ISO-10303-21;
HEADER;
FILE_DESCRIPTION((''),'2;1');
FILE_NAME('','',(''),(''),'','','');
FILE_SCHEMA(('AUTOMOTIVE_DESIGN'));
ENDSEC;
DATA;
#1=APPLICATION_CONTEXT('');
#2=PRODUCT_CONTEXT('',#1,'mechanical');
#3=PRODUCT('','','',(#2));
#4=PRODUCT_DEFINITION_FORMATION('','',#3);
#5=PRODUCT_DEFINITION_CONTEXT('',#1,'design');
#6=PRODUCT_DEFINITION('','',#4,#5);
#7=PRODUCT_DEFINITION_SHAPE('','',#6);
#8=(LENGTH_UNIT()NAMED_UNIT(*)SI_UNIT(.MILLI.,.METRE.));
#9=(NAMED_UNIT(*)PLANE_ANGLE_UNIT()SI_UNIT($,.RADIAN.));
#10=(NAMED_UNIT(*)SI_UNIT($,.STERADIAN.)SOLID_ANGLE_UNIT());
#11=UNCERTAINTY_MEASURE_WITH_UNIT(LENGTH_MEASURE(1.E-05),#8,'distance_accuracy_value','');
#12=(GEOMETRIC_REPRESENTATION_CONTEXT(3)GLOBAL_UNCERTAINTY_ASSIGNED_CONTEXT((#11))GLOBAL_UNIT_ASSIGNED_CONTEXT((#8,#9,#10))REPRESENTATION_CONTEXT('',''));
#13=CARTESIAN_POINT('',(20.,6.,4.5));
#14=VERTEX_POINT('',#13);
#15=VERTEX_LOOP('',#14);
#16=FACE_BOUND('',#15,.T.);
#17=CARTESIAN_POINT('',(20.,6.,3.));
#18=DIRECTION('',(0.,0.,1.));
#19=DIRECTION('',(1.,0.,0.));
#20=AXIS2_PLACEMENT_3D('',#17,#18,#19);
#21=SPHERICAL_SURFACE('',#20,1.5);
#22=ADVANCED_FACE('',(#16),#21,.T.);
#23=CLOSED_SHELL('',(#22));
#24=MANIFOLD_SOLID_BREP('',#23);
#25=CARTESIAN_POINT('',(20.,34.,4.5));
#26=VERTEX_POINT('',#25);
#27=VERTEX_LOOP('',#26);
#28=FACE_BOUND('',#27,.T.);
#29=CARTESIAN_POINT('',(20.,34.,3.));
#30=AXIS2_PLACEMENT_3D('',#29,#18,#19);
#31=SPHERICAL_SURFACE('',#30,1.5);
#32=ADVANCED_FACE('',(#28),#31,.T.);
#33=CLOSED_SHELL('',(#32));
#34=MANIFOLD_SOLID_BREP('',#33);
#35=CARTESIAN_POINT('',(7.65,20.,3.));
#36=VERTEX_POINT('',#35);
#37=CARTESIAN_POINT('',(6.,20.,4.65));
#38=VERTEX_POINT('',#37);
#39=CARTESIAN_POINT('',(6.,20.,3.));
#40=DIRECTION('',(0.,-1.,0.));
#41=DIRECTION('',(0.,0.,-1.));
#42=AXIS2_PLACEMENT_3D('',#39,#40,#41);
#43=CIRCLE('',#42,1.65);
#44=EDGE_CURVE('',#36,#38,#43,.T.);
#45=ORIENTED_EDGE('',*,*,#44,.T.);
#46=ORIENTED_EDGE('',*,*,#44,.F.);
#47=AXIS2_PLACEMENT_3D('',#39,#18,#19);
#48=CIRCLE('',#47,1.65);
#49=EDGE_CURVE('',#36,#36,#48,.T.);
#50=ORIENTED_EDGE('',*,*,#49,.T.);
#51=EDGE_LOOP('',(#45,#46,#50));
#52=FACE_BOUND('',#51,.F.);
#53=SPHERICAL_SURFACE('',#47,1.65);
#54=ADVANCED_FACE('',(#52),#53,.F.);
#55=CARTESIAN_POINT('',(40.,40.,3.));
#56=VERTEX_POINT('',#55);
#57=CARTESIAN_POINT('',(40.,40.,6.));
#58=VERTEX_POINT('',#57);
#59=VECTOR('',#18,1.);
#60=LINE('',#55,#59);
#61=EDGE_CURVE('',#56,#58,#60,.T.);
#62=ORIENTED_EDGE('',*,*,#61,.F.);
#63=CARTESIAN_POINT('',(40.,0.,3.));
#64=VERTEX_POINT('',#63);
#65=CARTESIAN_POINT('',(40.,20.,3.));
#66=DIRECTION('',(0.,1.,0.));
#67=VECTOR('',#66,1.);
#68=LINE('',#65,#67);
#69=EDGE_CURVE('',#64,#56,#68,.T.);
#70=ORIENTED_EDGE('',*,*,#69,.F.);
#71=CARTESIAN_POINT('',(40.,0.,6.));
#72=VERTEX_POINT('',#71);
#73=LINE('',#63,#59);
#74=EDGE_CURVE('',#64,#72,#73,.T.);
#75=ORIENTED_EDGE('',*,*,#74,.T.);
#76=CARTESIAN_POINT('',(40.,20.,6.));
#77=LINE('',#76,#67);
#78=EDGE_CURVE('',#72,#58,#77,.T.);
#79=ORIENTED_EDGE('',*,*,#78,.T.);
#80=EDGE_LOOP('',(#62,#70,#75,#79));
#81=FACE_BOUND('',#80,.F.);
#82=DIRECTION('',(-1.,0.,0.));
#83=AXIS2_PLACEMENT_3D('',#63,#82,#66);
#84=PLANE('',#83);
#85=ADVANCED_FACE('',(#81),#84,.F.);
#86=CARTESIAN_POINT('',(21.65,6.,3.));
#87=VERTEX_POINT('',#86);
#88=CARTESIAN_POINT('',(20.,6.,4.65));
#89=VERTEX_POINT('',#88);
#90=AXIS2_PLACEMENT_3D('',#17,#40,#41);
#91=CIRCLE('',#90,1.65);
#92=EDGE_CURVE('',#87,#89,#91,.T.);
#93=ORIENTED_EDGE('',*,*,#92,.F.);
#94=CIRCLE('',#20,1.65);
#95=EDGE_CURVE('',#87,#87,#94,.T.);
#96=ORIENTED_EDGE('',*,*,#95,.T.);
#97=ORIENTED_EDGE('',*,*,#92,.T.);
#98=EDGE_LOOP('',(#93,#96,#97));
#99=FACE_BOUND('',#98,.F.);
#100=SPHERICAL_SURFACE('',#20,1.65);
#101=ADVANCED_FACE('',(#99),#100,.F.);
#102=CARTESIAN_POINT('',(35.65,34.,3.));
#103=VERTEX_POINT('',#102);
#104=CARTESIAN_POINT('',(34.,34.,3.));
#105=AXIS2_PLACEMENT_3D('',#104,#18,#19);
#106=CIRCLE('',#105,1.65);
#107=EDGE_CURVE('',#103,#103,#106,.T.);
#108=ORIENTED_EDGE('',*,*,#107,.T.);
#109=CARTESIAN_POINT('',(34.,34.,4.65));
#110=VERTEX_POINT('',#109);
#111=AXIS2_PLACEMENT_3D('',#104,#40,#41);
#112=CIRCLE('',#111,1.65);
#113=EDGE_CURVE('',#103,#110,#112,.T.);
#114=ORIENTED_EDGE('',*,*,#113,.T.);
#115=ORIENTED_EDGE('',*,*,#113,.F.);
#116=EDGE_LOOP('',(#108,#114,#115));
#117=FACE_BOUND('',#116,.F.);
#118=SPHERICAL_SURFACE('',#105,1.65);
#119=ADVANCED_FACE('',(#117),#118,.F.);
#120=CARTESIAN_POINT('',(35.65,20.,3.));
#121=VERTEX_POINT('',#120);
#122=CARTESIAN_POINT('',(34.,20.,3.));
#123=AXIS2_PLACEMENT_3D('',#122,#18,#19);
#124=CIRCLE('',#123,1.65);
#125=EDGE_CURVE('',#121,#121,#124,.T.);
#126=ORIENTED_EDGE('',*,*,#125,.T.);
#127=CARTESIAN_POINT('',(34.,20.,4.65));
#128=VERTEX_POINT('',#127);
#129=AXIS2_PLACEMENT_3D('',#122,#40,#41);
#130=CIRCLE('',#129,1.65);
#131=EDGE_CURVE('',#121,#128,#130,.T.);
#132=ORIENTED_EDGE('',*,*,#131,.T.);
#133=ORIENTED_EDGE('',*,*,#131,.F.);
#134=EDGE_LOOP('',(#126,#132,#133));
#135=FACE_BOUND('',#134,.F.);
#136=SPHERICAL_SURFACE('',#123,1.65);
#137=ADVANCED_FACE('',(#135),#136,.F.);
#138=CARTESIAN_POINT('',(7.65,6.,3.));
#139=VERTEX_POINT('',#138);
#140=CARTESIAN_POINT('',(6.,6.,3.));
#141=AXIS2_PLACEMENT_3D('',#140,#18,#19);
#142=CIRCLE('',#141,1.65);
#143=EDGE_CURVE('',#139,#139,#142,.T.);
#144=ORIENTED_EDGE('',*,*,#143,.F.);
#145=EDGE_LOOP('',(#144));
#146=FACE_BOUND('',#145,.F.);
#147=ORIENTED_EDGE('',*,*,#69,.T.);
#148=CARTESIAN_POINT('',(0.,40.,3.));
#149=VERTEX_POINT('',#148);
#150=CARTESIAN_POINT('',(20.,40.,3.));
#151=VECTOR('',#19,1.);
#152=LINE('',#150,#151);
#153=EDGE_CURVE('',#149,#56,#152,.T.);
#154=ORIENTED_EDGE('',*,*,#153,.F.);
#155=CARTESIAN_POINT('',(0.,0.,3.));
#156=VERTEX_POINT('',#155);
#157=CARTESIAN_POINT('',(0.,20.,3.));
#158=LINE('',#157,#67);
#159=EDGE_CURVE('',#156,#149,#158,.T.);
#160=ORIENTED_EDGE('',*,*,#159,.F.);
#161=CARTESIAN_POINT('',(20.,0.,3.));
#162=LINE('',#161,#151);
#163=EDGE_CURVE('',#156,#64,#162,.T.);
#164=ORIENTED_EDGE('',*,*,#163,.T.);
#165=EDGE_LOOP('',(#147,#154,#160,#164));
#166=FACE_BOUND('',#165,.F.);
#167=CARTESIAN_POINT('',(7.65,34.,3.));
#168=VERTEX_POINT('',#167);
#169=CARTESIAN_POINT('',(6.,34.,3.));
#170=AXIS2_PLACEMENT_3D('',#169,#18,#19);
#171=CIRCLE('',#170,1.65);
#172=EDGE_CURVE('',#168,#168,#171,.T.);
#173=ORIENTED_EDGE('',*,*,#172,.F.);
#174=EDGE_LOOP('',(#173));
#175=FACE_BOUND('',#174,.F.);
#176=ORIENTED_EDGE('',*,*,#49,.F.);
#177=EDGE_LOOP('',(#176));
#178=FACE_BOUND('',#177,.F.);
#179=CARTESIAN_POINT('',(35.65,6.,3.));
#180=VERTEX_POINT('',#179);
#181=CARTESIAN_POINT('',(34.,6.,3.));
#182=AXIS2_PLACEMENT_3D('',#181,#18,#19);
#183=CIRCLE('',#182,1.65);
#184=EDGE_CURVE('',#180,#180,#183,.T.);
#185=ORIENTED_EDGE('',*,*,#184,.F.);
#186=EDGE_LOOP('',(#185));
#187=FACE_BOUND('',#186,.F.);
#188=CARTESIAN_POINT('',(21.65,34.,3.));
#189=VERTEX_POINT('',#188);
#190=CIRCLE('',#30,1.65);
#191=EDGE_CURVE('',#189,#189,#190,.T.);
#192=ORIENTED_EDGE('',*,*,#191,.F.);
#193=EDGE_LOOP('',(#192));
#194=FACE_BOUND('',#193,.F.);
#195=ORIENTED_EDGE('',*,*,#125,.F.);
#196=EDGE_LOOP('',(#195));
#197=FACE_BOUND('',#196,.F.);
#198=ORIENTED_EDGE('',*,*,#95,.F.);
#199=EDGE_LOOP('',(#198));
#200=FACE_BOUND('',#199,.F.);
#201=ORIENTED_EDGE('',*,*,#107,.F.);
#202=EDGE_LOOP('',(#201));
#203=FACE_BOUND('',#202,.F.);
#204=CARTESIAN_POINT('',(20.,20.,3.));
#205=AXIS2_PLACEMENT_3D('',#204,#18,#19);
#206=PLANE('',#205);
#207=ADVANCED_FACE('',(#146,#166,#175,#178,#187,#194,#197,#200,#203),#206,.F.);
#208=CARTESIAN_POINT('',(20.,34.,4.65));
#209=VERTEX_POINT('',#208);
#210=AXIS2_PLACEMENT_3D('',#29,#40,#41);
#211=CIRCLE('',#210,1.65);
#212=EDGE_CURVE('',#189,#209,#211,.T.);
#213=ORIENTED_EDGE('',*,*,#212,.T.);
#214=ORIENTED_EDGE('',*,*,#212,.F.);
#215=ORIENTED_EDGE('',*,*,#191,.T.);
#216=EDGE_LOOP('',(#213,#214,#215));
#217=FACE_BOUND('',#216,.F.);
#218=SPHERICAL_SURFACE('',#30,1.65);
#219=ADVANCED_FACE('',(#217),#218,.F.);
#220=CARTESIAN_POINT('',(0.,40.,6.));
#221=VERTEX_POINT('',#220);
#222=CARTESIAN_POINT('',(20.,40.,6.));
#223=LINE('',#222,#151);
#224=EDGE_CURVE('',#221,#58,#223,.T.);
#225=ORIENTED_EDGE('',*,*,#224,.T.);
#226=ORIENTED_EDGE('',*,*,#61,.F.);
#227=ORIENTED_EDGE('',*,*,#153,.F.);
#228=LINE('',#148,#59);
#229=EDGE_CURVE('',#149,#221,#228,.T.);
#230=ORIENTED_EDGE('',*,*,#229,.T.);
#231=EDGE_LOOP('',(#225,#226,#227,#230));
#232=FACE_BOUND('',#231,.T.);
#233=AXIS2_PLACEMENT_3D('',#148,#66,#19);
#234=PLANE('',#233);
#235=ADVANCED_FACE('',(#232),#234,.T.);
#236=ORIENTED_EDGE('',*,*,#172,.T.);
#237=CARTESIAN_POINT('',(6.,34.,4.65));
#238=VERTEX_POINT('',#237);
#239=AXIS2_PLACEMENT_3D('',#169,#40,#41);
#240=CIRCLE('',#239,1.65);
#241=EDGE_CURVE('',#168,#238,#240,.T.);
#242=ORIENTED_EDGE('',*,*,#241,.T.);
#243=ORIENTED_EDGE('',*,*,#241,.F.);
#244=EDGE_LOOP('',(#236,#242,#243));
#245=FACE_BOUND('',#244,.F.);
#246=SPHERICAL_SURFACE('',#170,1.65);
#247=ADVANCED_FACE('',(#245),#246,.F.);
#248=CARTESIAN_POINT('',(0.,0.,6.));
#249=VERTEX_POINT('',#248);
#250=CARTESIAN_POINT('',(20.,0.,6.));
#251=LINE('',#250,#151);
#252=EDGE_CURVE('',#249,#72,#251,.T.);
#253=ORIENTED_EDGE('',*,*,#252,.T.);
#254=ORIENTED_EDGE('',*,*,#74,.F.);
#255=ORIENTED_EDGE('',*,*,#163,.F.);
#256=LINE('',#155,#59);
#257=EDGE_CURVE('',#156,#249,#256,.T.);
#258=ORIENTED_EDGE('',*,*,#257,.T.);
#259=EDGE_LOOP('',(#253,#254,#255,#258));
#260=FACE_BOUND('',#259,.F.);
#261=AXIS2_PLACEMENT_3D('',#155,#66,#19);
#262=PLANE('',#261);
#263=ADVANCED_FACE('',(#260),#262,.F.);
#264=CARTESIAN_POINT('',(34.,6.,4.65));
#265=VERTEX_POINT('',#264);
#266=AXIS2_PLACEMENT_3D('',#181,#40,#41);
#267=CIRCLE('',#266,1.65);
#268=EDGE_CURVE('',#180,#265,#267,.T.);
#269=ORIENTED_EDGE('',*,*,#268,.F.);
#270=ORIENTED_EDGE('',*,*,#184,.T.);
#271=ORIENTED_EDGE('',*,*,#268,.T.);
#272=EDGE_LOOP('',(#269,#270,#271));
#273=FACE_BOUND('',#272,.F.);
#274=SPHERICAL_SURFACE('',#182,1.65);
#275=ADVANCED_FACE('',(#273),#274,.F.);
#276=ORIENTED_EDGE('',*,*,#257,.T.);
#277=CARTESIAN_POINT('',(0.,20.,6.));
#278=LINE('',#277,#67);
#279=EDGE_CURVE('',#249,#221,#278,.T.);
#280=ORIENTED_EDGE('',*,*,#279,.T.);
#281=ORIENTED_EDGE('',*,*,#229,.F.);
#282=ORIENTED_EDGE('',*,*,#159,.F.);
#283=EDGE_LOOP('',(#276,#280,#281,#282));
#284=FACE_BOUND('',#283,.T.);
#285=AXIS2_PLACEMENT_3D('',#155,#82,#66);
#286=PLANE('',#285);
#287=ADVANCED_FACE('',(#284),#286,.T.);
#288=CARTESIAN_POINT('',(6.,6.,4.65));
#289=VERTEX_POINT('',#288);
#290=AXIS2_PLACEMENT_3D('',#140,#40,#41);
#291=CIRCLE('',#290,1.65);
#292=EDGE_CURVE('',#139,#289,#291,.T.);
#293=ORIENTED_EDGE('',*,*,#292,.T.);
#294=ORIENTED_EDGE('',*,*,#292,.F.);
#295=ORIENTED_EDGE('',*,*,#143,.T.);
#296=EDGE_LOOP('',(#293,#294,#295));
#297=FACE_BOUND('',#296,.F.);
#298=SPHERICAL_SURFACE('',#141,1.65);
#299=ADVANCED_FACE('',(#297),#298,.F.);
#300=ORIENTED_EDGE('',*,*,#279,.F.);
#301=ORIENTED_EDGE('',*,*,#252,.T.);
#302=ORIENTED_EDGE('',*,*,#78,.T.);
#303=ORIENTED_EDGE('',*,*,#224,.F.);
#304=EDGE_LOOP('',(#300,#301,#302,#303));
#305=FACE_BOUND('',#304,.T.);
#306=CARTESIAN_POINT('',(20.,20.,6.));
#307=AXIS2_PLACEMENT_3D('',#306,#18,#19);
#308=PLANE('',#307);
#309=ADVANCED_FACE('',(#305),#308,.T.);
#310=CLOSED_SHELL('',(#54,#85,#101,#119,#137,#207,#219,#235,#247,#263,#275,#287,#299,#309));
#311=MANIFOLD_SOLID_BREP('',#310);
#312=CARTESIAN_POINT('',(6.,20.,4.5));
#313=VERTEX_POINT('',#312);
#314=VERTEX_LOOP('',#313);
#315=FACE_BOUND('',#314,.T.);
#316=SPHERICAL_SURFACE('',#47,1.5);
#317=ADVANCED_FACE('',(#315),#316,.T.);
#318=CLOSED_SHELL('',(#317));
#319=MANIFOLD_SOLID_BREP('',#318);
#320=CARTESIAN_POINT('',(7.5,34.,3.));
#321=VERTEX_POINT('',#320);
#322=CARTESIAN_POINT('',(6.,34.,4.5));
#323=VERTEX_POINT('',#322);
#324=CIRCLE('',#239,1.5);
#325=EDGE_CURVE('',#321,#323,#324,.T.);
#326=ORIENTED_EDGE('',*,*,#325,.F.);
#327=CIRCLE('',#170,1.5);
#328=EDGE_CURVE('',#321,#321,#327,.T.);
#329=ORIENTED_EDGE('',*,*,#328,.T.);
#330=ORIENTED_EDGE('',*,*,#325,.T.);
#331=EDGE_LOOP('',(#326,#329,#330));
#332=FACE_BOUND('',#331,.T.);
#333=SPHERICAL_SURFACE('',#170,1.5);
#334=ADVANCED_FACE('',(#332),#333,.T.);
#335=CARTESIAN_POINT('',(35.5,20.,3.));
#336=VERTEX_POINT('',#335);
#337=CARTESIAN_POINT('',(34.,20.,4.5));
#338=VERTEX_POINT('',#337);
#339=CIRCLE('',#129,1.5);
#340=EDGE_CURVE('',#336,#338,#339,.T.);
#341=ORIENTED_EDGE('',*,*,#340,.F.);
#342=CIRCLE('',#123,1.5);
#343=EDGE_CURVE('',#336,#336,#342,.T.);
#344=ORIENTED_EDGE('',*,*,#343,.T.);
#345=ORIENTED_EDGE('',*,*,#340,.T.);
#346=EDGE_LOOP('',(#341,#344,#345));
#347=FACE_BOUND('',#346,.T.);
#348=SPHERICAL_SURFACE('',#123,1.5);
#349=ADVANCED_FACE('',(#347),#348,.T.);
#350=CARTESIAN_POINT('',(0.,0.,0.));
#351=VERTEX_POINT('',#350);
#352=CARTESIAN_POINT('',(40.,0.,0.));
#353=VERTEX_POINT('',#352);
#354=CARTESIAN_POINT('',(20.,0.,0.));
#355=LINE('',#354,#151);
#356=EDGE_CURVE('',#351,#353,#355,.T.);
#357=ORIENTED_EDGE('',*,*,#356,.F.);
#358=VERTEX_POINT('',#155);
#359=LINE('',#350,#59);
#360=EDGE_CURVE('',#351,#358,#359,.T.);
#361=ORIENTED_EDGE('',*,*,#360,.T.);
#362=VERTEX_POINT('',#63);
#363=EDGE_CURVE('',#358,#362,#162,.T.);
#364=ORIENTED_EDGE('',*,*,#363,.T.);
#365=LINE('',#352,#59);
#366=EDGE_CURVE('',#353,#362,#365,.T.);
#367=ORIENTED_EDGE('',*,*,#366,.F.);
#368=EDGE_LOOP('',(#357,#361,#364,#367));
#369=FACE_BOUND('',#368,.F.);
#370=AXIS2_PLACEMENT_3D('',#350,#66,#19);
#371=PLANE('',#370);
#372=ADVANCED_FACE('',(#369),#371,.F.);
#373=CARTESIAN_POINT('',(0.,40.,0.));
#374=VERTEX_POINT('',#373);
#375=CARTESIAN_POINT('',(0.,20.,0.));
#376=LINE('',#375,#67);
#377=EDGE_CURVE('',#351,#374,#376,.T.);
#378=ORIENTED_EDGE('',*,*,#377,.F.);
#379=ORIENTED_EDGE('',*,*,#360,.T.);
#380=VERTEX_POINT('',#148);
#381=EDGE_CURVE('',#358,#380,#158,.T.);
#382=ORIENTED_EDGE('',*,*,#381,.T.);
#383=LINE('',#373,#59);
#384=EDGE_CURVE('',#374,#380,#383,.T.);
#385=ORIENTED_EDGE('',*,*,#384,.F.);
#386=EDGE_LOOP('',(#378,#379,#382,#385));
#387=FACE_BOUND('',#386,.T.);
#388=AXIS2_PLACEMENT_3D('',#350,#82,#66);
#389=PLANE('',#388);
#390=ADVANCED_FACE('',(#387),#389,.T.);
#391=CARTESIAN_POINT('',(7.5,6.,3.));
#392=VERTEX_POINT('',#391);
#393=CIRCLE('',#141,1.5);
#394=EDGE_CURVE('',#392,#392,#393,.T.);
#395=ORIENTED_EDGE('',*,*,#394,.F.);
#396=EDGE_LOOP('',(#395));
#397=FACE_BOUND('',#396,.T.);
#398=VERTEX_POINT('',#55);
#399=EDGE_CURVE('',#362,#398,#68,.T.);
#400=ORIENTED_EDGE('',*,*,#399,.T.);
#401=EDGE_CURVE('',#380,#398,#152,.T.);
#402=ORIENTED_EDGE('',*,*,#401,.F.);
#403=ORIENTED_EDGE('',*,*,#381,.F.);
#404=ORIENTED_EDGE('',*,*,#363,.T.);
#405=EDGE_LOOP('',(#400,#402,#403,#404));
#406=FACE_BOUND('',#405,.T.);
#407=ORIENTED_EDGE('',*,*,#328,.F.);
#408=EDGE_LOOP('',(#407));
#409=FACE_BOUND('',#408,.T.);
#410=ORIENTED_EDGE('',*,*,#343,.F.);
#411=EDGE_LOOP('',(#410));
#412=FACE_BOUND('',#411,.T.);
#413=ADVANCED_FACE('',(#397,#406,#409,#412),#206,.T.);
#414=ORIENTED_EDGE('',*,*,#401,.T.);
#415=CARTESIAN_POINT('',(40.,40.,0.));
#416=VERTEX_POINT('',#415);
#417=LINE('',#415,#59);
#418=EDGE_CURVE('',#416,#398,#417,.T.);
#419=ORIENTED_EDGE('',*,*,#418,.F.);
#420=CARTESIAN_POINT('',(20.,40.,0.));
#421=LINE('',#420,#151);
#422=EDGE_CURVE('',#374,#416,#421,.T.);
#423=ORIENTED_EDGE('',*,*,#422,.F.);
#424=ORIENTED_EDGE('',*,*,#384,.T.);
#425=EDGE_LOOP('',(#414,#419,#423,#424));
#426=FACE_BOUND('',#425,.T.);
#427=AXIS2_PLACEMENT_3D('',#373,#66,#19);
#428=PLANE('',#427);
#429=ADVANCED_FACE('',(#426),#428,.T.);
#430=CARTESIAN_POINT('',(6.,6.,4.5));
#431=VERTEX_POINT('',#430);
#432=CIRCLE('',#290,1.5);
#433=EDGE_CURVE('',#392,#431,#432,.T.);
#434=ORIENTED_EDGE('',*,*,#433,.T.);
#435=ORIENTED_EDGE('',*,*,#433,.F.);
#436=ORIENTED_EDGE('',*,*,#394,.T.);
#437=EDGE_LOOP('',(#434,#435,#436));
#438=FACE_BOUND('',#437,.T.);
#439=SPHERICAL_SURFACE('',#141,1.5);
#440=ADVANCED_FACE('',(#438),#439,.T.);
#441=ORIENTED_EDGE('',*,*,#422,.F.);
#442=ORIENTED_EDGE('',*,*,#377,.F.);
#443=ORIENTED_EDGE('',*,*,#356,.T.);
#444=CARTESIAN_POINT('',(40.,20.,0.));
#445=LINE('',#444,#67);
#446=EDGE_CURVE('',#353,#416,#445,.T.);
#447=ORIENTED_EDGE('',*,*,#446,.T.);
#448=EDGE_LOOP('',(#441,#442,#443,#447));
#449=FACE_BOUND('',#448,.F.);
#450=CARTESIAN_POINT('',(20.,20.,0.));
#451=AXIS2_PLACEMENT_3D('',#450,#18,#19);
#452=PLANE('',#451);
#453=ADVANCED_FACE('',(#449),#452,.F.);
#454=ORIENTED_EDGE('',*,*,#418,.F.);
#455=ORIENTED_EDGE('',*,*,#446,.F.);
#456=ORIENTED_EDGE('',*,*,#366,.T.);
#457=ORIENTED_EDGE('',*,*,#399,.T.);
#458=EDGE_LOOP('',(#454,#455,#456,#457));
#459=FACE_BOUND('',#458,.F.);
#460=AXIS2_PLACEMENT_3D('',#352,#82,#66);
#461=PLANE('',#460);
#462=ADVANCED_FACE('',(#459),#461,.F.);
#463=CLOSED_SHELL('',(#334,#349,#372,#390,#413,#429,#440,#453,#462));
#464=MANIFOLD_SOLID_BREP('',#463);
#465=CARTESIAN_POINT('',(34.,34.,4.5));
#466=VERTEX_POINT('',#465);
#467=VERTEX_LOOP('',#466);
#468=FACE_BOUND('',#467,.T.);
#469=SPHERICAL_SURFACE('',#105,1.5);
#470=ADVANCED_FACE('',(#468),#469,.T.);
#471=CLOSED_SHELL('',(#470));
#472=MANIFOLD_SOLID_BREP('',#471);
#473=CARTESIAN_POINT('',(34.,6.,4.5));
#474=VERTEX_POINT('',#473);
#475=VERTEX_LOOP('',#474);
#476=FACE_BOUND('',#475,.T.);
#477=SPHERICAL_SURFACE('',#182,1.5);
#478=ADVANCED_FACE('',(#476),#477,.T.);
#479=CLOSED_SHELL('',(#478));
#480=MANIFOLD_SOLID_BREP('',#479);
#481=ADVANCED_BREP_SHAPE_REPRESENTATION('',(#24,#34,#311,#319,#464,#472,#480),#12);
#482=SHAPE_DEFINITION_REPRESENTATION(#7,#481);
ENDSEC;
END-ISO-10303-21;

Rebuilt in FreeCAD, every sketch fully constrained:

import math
import FreeCAD as App
import Part
import Sketcher
from FreeCAD import Vector


def add_polygon(sketch, points):
    """Adds a closed chain of lines whose ends are joined by coincident constraints."""
    first, n = sketch.GeometryCount, len(points)
    for a, b in zip(points, points[1:] + points[:1]):
        sketch.addGeometry(Part.LineSegment(App.Vector(*a, 0), App.Vector(*b, 0)), False)
    for i in range(n):
        sketch.addConstraint(Sketcher.Constraint("Coincident", first + i, 2, first + (i + 1) % n, 1))

doc = App.newDocument("Part")
params = doc.addObject("Spreadsheet::Sheet", "Params")
for row, (alias, value) in enumerate([
    ("sketch1_radius", "1.65 mm"),
    ("revolution_angle", "360 deg"),
    ("sketch2_radius", "1.65 mm"),
    ("revolution2_angle", "360 deg"),
    ("sketch3_radius", "1.65 mm"),
    ("revolution3_angle", "360 deg"),
    ("sketch4_radius", "1.65 mm"),
    ("revolution4_angle", "360 deg"),
    ("sketch5_radius", "1.65 mm"),
    ("revolution5_angle", "360 deg"),
    ("sketch6_radius", "1.65 mm"),
    ("revolution6_angle", "360 deg"),
    ("sketch7_radius", "1.65 mm"),
    ("revolution7_angle", "360 deg"),
    ("sketch8_radius", "1.65 mm"),
    ("revolution8_angle", "360 deg"),
    ("sketch9_width", "40 mm"),
    ("pad1_length", "3 mm"),
    ("sketch10_radius", "1.5 mm"),
    ("revolution9_angle", "360 deg"),
    ("sketch11_radius", "1.5 mm"),
    ("revolution10_angle", "360 deg"),
    ("sketch12_radius", "1.5 mm"),
    ("revolution11_angle", "360 deg"),
    ("sketch13_radius", "1.5 mm"),
    ("revolution12_angle", "360 deg"),
    ("sketch14_radius", "1.5 mm"),
    ("revolution13_angle", "360 deg"),
    ("sketch15_radius", "1.5 mm"),
    ("revolution14_angle", "360 deg"),
    ("sketch16_radius", "1.5 mm"),
    ("revolution15_angle", "360 deg"),
    ("sketch17_radius", "1.5 mm"),
    ("revolution16_angle", "360 deg"),
    ("sketch18_width", "40 mm"),
    ("pad2_length", "3 mm"),
], start=1):
    params.set(f"A{row}", alias)
    params.set(f"B{row}", "=" + value)
    params.setAlias(f"B{row}", alias)

body = doc.addObject("PartDesign::Body", "Body")

# Sketch on XZ plane
sketch1 = body.newObject("Sketcher::SketchObject", "Sketch")
sketch1.AttachmentSupport = (doc.getObject("XZ_Plane"), [""])
sketch1.MapMode = "FlatFace"
sketch1.AttachmentOffset = App.Placement(Vector(0, 0, -20), App.Rotation())
sketch1.addGeometry([
    Part.ArcOfCircle(Part.Circle(Vector(34, 3, 0), Vector(0, 0, 1), 1.6), math.radians(-90), math.radians(90)),
    Part.LineSegment(Vector(34, 4.7, 0), Vector(34, 1.4, 0)),
], False)
sketch1.addGeometry(Part.LineSegment(Vector(34, 1.4, 0), Vector(34, 4.7, 0)), True)  # axis
sketch1.addConstraint([
    Sketcher.Constraint("Coincident", 0, 1, 1, 2),
    Sketcher.Constraint("Coincident", 1, 1, 0, 2),
    Sketcher.Constraint("Vertical", 1),
    Sketcher.Constraint("Vertical", 2),
    Sketcher.Constraint("Coincident", 2, 1, 0, 1),
    Sketcher.Constraint("Equal", 1, 2),
    Sketcher.Constraint("Radius", 0, 1.65),
    Sketcher.Constraint("DistanceX", -1, 1, 0, 3, 34.0),
    Sketcher.Constraint("DistanceY", -1, 1, 0, 3, 3.0),
    Sketcher.Constraint("DistanceX", -1, 1, 0, 1, 34.0),
])
sketch1.setExpression("Constraints[6]", "Params.sketch1_radius")
revolution = body.newObject("PartDesign::Revolution", "Revolution")
revolution.Profile = sketch1
revolution.ReferenceAxis = (sketch1, ["Axis0"])
revolution.setExpression("Angle", "Params.revolution_angle")
body2 = doc.addObject("PartDesign::Body", "Body001")

# Sketch on XZ plane
sketch2 = body2.newObject("Sketcher::SketchObject", "Sketch001")
sketch2.AttachmentSupport = (doc.getObject("XZ_Plane001"), [""])
sketch2.MapMode = "FlatFace"
sketch2.AttachmentOffset = App.Placement(Vector(0, 0, -6), App.Rotation())
sketch2.addGeometry([
    Part.ArcOfCircle(Part.Circle(Vector(34, 3, 0), Vector(0, 0, 1), 1.6), math.radians(-90), math.radians(90)),
    Part.LineSegment(Vector(34, 4.7, 0), Vector(34, 1.4, 0)),
], False)
sketch2.addGeometry(Part.LineSegment(Vector(34, 1.4, 0), Vector(34, 4.7, 0)), True)  # axis
sketch2.addConstraint([
    Sketcher.Constraint("Coincident", 0, 1, 1, 2),
    Sketcher.Constraint("Coincident", 1, 1, 0, 2),
    Sketcher.Constraint("Vertical", 1),
    Sketcher.Constraint("Vertical", 2),
    Sketcher.Constraint("Coincident", 2, 1, 0, 1),
    Sketcher.Constraint("Equal", 1, 2),
    Sketcher.Constraint("Radius", 0, 1.65),
    Sketcher.Constraint("DistanceX", -1, 1, 0, 3, 34.0),
    Sketcher.Constraint("DistanceY", -1, 1, 0, 3, 3.0),
    Sketcher.Constraint("DistanceX", -1, 1, 0, 1, 34.0),
])
sketch2.setExpression("Constraints[6]", "Params.sketch2_radius")
revolution2 = body2.newObject("PartDesign::Revolution", "Revolution001")
revolution2.Profile = sketch2
revolution2.ReferenceAxis = (sketch2, ["Axis0"])
revolution2.setExpression("Angle", "Params.revolution2_angle")
body3 = doc.addObject("PartDesign::Body", "Body002")

# Sketch on XZ plane
sketch3 = body3.newObject("Sketcher::SketchObject", "Sketch002")
sketch3.AttachmentSupport = (doc.getObject("XZ_Plane002"), [""])
sketch3.MapMode = "FlatFace"
sketch3.AttachmentOffset = App.Placement(Vector(0, 0, -34), App.Rotation())
sketch3.addGeometry([
    Part.ArcOfCircle(Part.Circle(Vector(20, 3, 0), Vector(0, 0, 1), 1.6), math.radians(-90), math.radians(90)),
    Part.LineSegment(Vector(20, 4.7, 0), Vector(20, 1.4, 0)),
], False)
sketch3.addGeometry(Part.LineSegment(Vector(20, 1.4, 0), Vector(20, 4.7, 0)), True)  # axis
sketch3.addConstraint([
    Sketcher.Constraint("Coincident", 0, 1, 1, 2),
    Sketcher.Constraint("Coincident", 1, 1, 0, 2),
    Sketcher.Constraint("Vertical", 1),
    Sketcher.Constraint("Vertical", 2),
    Sketcher.Constraint("Coincident", 2, 1, 0, 1),
    Sketcher.Constraint("Equal", 1, 2),
    Sketcher.Constraint("Radius", 0, 1.65),
    Sketcher.Constraint("DistanceX", -1, 1, 0, 3, 20.0),
    Sketcher.Constraint("DistanceY", -1, 1, 0, 3, 3.0),
    Sketcher.Constraint("DistanceX", -1, 1, 0, 1, 20.0),
])
sketch3.setExpression("Constraints[6]", "Params.sketch3_radius")
revolution3 = body3.newObject("PartDesign::Revolution", "Revolution002")
revolution3.Profile = sketch3
revolution3.ReferenceAxis = (sketch3, ["Axis0"])
revolution3.setExpression("Angle", "Params.revolution3_angle")
body4 = doc.addObject("PartDesign::Body", "Body003")

# Sketch on XZ plane
sketch4 = body4.newObject("Sketcher::SketchObject", "Sketch003")
sketch4.AttachmentSupport = (doc.getObject("XZ_Plane003"), [""])
sketch4.MapMode = "FlatFace"
sketch4.AttachmentOffset = App.Placement(Vector(0, 0, -6), App.Rotation())
sketch4.addGeometry([
    Part.ArcOfCircle(Part.Circle(Vector(20, 3, 0), Vector(0, 0, 1), 1.6), math.radians(-90), math.radians(90)),
    Part.LineSegment(Vector(20, 4.7, 0), Vector(20, 1.4, 0)),
], False)
sketch4.addGeometry(Part.LineSegment(Vector(20, 1.4, 0), Vector(20, 4.7, 0)), True)  # axis
sketch4.addConstraint([
    Sketcher.Constraint("Coincident", 0, 1, 1, 2),
    Sketcher.Constraint("Coincident", 1, 1, 0, 2),
    Sketcher.Constraint("Vertical", 1),
    Sketcher.Constraint("Vertical", 2),
    Sketcher.Constraint("Coincident", 2, 1, 0, 1),
    Sketcher.Constraint("Equal", 1, 2),
    Sketcher.Constraint("Radius", 0, 1.65),
    Sketcher.Constraint("DistanceX", -1, 1, 0, 3, 20.0),
    Sketcher.Constraint("DistanceY", -1, 1, 0, 3, 3.0),
    Sketcher.Constraint("DistanceX", -1, 1, 0, 1, 20.0),
])
sketch4.setExpression("Constraints[6]", "Params.sketch4_radius")
revolution4 = body4.newObject("PartDesign::Revolution", "Revolution003")
revolution4.Profile = sketch4
revolution4.ReferenceAxis = (sketch4, ["Axis0"])
revolution4.setExpression("Angle", "Params.revolution4_angle")
body5 = doc.addObject("PartDesign::Body", "Body004")

# Sketch on XZ plane
sketch5 = body5.newObject("Sketcher::SketchObject", "Sketch004")
sketch5.AttachmentSupport = (doc.getObject("XZ_Plane004"), [""])
sketch5.MapMode = "FlatFace"
sketch5.AttachmentOffset = App.Placement(Vector(0, 0, -34), App.Rotation())
sketch5.addGeometry([
    Part.ArcOfCircle(Part.Circle(Vector(6, 3, 0), Vector(0, 0, 1), 1.6), math.radians(-90), math.radians(90)),
    Part.LineSegment(Vector(6, 4.7, 0), Vector(6, 1.4, 0)),
], False)
sketch5.addGeometry(Part.LineSegment(Vector(6, 1.4, 0), Vector(6, 4.7, 0)), True)  # axis
sketch5.addConstraint([
    Sketcher.Constraint("Coincident", 0, 1, 1, 2),
    Sketcher.Constraint("Coincident", 1, 1, 0, 2),
    Sketcher.Constraint("Vertical", 1),
    Sketcher.Constraint("Vertical", 2),
    Sketcher.Constraint("Coincident", 2, 1, 0, 1),
    Sketcher.Constraint("Equal", 1, 2),
    Sketcher.Constraint("Radius", 0, 1.65),
    Sketcher.Constraint("DistanceX", -1, 1, 0, 3, 6.0),
    Sketcher.Constraint("DistanceY", -1, 1, 0, 3, 3.0),
    Sketcher.Constraint("DistanceX", -1, 1, 0, 1, 6.0),
])
sketch5.setExpression("Constraints[6]", "Params.sketch5_radius")
revolution5 = body5.newObject("PartDesign::Revolution", "Revolution004")
revolution5.Profile = sketch5
revolution5.ReferenceAxis = (sketch5, ["Axis0"])
revolution5.setExpression("Angle", "Params.revolution5_angle")
body6 = doc.addObject("PartDesign::Body", "Body005")

# Sketch on XZ plane
sketch6 = body6.newObject("Sketcher::SketchObject", "Sketch005")
sketch6.AttachmentSupport = (doc.getObject("XZ_Plane005"), [""])
sketch6.MapMode = "FlatFace"
sketch6.AttachmentOffset = App.Placement(Vector(0, 0, -34), App.Rotation())
sketch6.addGeometry([
    Part.ArcOfCircle(Part.Circle(Vector(34, 3, 0), Vector(0, 0, 1), 1.6), math.radians(-90), math.radians(90)),
    Part.LineSegment(Vector(34, 4.7, 0), Vector(34, 1.4, 0)),
], False)
sketch6.addGeometry(Part.LineSegment(Vector(34, 1.4, 0), Vector(34, 4.7, 0)), True)  # axis
sketch6.addConstraint([
    Sketcher.Constraint("Coincident", 0, 1, 1, 2),
    Sketcher.Constraint("Coincident", 1, 1, 0, 2),
    Sketcher.Constraint("Vertical", 1),
    Sketcher.Constraint("Vertical", 2),
    Sketcher.Constraint("Coincident", 2, 1, 0, 1),
    Sketcher.Constraint("Equal", 1, 2),
    Sketcher.Constraint("Radius", 0, 1.65),
    Sketcher.Constraint("DistanceX", -1, 1, 0, 3, 34.0),
    Sketcher.Constraint("DistanceY", -1, 1, 0, 3, 3.0),
    Sketcher.Constraint("DistanceX", -1, 1, 0, 1, 34.0),
])
sketch6.setExpression("Constraints[6]", "Params.sketch6_radius")
revolution6 = body6.newObject("PartDesign::Revolution", "Revolution005")
revolution6.Profile = sketch6
revolution6.ReferenceAxis = (sketch6, ["Axis0"])
revolution6.setExpression("Angle", "Params.revolution6_angle")
body7 = doc.addObject("PartDesign::Body", "Body006")

# Sketch on XZ plane
sketch7 = body7.newObject("Sketcher::SketchObject", "Sketch006")
sketch7.AttachmentSupport = (doc.getObject("XZ_Plane006"), [""])
sketch7.MapMode = "FlatFace"
sketch7.AttachmentOffset = App.Placement(Vector(0, 0, -20), App.Rotation())
sketch7.addGeometry([
    Part.ArcOfCircle(Part.Circle(Vector(6, 3, 0), Vector(0, 0, 1), 1.6), math.radians(-90), math.radians(90)),
    Part.LineSegment(Vector(6, 4.7, 0), Vector(6, 1.4, 0)),
], False)
sketch7.addGeometry(Part.LineSegment(Vector(6, 1.4, 0), Vector(6, 4.7, 0)), True)  # axis
sketch7.addConstraint([
    Sketcher.Constraint("Coincident", 0, 1, 1, 2),
    Sketcher.Constraint("Coincident", 1, 1, 0, 2),
    Sketcher.Constraint("Vertical", 1),
    Sketcher.Constraint("Vertical", 2),
    Sketcher.Constraint("Coincident", 2, 1, 0, 1),
    Sketcher.Constraint("Equal", 1, 2),
    Sketcher.Constraint("Radius", 0, 1.65),
    Sketcher.Constraint("DistanceX", -1, 1, 0, 3, 6.0),
    Sketcher.Constraint("DistanceY", -1, 1, 0, 3, 3.0),
    Sketcher.Constraint("DistanceX", -1, 1, 0, 1, 6.0),
])
sketch7.setExpression("Constraints[6]", "Params.sketch7_radius")
revolution7 = body7.newObject("PartDesign::Revolution", "Revolution006")
revolution7.Profile = sketch7
revolution7.ReferenceAxis = (sketch7, ["Axis0"])
revolution7.setExpression("Angle", "Params.revolution7_angle")
body8 = doc.addObject("PartDesign::Body", "Body007")
body8.AllowCompound = True

# Sketch on XZ plane
sketch8 = body8.newObject("Sketcher::SketchObject", "Sketch007")
sketch8.AttachmentSupport = (doc.getObject("XZ_Plane007"), [""])
sketch8.MapMode = "FlatFace"
sketch8.AttachmentOffset = App.Placement(Vector(0, 0, -6), App.Rotation())
sketch8.addGeometry([
    Part.ArcOfCircle(Part.Circle(Vector(6, 3, 0), Vector(0, 0, 1), 1.6), math.radians(-90), math.radians(90)),
    Part.LineSegment(Vector(6, 4.7, 0), Vector(6, 1.4, 0)),
], False)
sketch8.addGeometry(Part.LineSegment(Vector(6, 1.4, 0), Vector(6, 4.7, 0)), True)  # axis
sketch8.addConstraint([
    Sketcher.Constraint("Coincident", 0, 1, 1, 2),
    Sketcher.Constraint("Coincident", 1, 1, 0, 2),
    Sketcher.Constraint("Vertical", 1),
    Sketcher.Constraint("Vertical", 2),
    Sketcher.Constraint("Coincident", 2, 1, 0, 1),
    Sketcher.Constraint("Equal", 1, 2),
    Sketcher.Constraint("Radius", 0, 1.65),
    Sketcher.Constraint("DistanceX", -1, 1, 0, 3, 6.0),
    Sketcher.Constraint("DistanceY", -1, 1, 0, 3, 3.0),
    Sketcher.Constraint("DistanceX", -1, 1, 0, 1, 6.0),
])
sketch8.setExpression("Constraints[6]", "Params.sketch8_radius")
revolution8 = body8.newObject("PartDesign::Revolution", "Revolution007")
revolution8.Profile = sketch8
revolution8.ReferenceAxis = (sketch8, ["Axis0"])
revolution8.setExpression("Angle", "Params.revolution8_angle")
doc.recompute()

boolean = body8.newObject("PartDesign::Boolean", "Boolean")
boolean.Type = "Fuse"
boolean.addObjects([body])
doc.recompute()

boolean2 = body8.newObject("PartDesign::Boolean", "Boolean001")
boolean2.Type = "Fuse"
boolean2.addObjects([body2])
doc.recompute()

boolean3 = body8.newObject("PartDesign::Boolean", "Boolean002")
boolean3.Type = "Fuse"
boolean3.addObjects([body3])
doc.recompute()

boolean4 = body8.newObject("PartDesign::Boolean", "Boolean003")
boolean4.Type = "Fuse"
boolean4.addObjects([body4])
doc.recompute()

boolean5 = body8.newObject("PartDesign::Boolean", "Boolean004")
boolean5.Type = "Fuse"
boolean5.addObjects([body5])
doc.recompute()

boolean6 = body8.newObject("PartDesign::Boolean", "Boolean005")
boolean6.Type = "Fuse"
boolean6.addObjects([body6])
doc.recompute()

boolean7 = body8.newObject("PartDesign::Boolean", "Boolean006")
boolean7.Type = "Fuse"
boolean7.addObjects([body7])
body9 = doc.addObject("PartDesign::Body", "Body008")

# Sketch on XY plane
sketch9 = body9.newObject("Sketcher::SketchObject", "Sketch008")
sketch9.AttachmentSupport = (doc.getObject("XY_Plane008"), [""])
sketch9.MapMode = "FlatFace"
sketch9.AttachmentOffset = App.Placement(Vector(0, 0, 3), App.Rotation())
add_polygon(sketch9, [(0, 40), (0, 0), (40, 0), (40, 40)])  # lines 0-3
sketch9.addConstraint([
    Sketcher.Constraint("Vertical", 0),
    Sketcher.Constraint("Horizontal", 1),
    Sketcher.Constraint("Vertical", 2),
    Sketcher.Constraint("Horizontal", 3),
    Sketcher.Constraint("Coincident", 0, 2, -1, 1),
    Sketcher.Constraint("Equal", 3, 0),
    Sketcher.Constraint("DistanceX", 1, 1, 1, 2, 40.0),
])
sketch9.setExpression("Constraints[10]", "Params.sketch9_width")
pad1 = body9.newObject("PartDesign::Pad", "Pad")
pad1.Profile = sketch9
pad1.setExpression("Length", "Params.pad1_length")
doc.recompute()

boolean8 = body9.newObject("PartDesign::Boolean", "Boolean007")
boolean8.Type = "Cut"
boolean8.addObjects([body8])
body10 = doc.addObject("PartDesign::Body", "Body009")

# Sketch on XZ plane
sketch10 = body10.newObject("Sketcher::SketchObject", "Sketch009")
sketch10.AttachmentSupport = (doc.getObject("XZ_Plane009"), [""])
sketch10.MapMode = "FlatFace"
sketch10.AttachmentOffset = App.Placement(Vector(0, 0, -34), App.Rotation())
sketch10.addGeometry([
    Part.ArcOfCircle(Part.Circle(Vector(20, 3, 0), Vector(0, 0, 1), 1.5), math.radians(-90), math.radians(90)),
    Part.LineSegment(Vector(20, 4.5, 0), Vector(20, 1.5, 0)),
], False)
sketch10.addGeometry(Part.LineSegment(Vector(20, 1.5, 0), Vector(20, 4.5, 0)), True)  # axis
sketch10.addConstraint([
    Sketcher.Constraint("Coincident", 0, 1, 1, 2),
    Sketcher.Constraint("Coincident", 1, 1, 0, 2),
    Sketcher.Constraint("Vertical", 1),
    Sketcher.Constraint("Vertical", 2),
    Sketcher.Constraint("Coincident", 2, 1, 0, 1),
    Sketcher.Constraint("Equal", 1, 2),
    Sketcher.Constraint("Radius", 0, 1.5),
    Sketcher.Constraint("DistanceX", -1, 1, 0, 3, 20.0),
    Sketcher.Constraint("DistanceY", -1, 1, 0, 3, 3.0),
    Sketcher.Constraint("DistanceX", -1, 1, 0, 1, 20.0),
])
sketch10.setExpression("Constraints[6]", "Params.sketch10_radius")
revolution9 = body10.newObject("PartDesign::Revolution", "Revolution008")
revolution9.Profile = sketch10
revolution9.ReferenceAxis = (sketch10, ["Axis0"])
revolution9.setExpression("Angle", "Params.revolution9_angle")
body11 = doc.addObject("PartDesign::Body", "Body010")

# Sketch on XZ plane
sketch11 = body11.newObject("Sketcher::SketchObject", "Sketch010")
sketch11.AttachmentSupport = (doc.getObject("XZ_Plane010"), [""])
sketch11.MapMode = "FlatFace"
sketch11.AttachmentOffset = App.Placement(Vector(0, 0, -34), App.Rotation())
sketch11.addGeometry([
    Part.ArcOfCircle(Part.Circle(Vector(34, 3, 0), Vector(0, 0, 1), 1.5), math.radians(-90), math.radians(90)),
    Part.LineSegment(Vector(34, 4.5, 0), Vector(34, 1.5, 0)),
], False)
sketch11.addGeometry(Part.LineSegment(Vector(34, 1.5, 0), Vector(34, 4.5, 0)), True)  # axis
sketch11.addConstraint([
    Sketcher.Constraint("Coincident", 0, 1, 1, 2),
    Sketcher.Constraint("Coincident", 1, 1, 0, 2),
    Sketcher.Constraint("Vertical", 1),
    Sketcher.Constraint("Vertical", 2),
    Sketcher.Constraint("Coincident", 2, 1, 0, 1),
    Sketcher.Constraint("Equal", 1, 2),
    Sketcher.Constraint("Radius", 0, 1.5),
    Sketcher.Constraint("DistanceX", -1, 1, 0, 3, 34.0),
    Sketcher.Constraint("DistanceY", -1, 1, 0, 3, 3.0),
    Sketcher.Constraint("DistanceX", -1, 1, 0, 1, 34.0),
])
sketch11.setExpression("Constraints[6]", "Params.sketch11_radius")
revolution10 = body11.newObject("PartDesign::Revolution", "Revolution009")
revolution10.Profile = sketch11
revolution10.ReferenceAxis = (sketch11, ["Axis0"])
revolution10.setExpression("Angle", "Params.revolution10_angle")
body12 = doc.addObject("PartDesign::Body", "Body011")

# Sketch on XZ plane
sketch12 = body12.newObject("Sketcher::SketchObject", "Sketch011")
sketch12.AttachmentSupport = (doc.getObject("XZ_Plane011"), [""])
sketch12.MapMode = "FlatFace"
sketch12.AttachmentOffset = App.Placement(Vector(0, 0, -20), App.Rotation())
sketch12.addGeometry([
    Part.ArcOfCircle(Part.Circle(Vector(6, 3, 0), Vector(0, 0, 1), 1.5), math.radians(-90), math.radians(90)),
    Part.LineSegment(Vector(6, 4.5, 0), Vector(6, 1.5, 0)),
], False)
sketch12.addGeometry(Part.LineSegment(Vector(6, 1.5, 0), Vector(6, 4.5, 0)), True)  # axis
sketch12.addConstraint([
    Sketcher.Constraint("Coincident", 0, 1, 1, 2),
    Sketcher.Constraint("Coincident", 1, 1, 0, 2),
    Sketcher.Constraint("Vertical", 1),
    Sketcher.Constraint("Vertical", 2),
    Sketcher.Constraint("Coincident", 2, 1, 0, 1),
    Sketcher.Constraint("Equal", 1, 2),
    Sketcher.Constraint("Radius", 0, 1.5),
    Sketcher.Constraint("DistanceX", -1, 1, 0, 3, 6.0),
    Sketcher.Constraint("DistanceY", -1, 1, 0, 3, 3.0),
    Sketcher.Constraint("DistanceX", -1, 1, 0, 1, 6.0),
])
sketch12.setExpression("Constraints[6]", "Params.sketch12_radius")
revolution11 = body12.newObject("PartDesign::Revolution", "Revolution010")
revolution11.Profile = sketch12
revolution11.ReferenceAxis = (sketch12, ["Axis0"])
revolution11.setExpression("Angle", "Params.revolution11_angle")
body13 = doc.addObject("PartDesign::Body", "Body012")

# Sketch on XZ plane
sketch13 = body13.newObject("Sketcher::SketchObject", "Sketch012")
sketch13.AttachmentSupport = (doc.getObject("XZ_Plane012"), [""])
sketch13.MapMode = "FlatFace"
sketch13.AttachmentOffset = App.Placement(Vector(0, 0, -6), App.Rotation())
sketch13.addGeometry([
    Part.ArcOfCircle(Part.Circle(Vector(20, 3, 0), Vector(0, 0, 1), 1.5), math.radians(-90), math.radians(90)),
    Part.LineSegment(Vector(20, 4.5, 0), Vector(20, 1.5, 0)),
], False)
sketch13.addGeometry(Part.LineSegment(Vector(20, 1.5, 0), Vector(20, 4.5, 0)), True)  # axis
sketch13.addConstraint([
    Sketcher.Constraint("Coincident", 0, 1, 1, 2),
    Sketcher.Constraint("Coincident", 1, 1, 0, 2),
    Sketcher.Constraint("Vertical", 1),
    Sketcher.Constraint("Vertical", 2),
    Sketcher.Constraint("Coincident", 2, 1, 0, 1),
    Sketcher.Constraint("Equal", 1, 2),
    Sketcher.Constraint("Radius", 0, 1.5),
    Sketcher.Constraint("DistanceX", -1, 1, 0, 3, 20.0),
    Sketcher.Constraint("DistanceY", -1, 1, 0, 3, 3.0),
    Sketcher.Constraint("DistanceX", -1, 1, 0, 1, 20.0),
])
sketch13.setExpression("Constraints[6]", "Params.sketch13_radius")
revolution12 = body13.newObject("PartDesign::Revolution", "Revolution011")
revolution12.Profile = sketch13
revolution12.ReferenceAxis = (sketch13, ["Axis0"])
revolution12.setExpression("Angle", "Params.revolution12_angle")
body14 = doc.addObject("PartDesign::Body", "Body013")
body14.AllowCompound = True

# Sketch on XZ plane
sketch14 = body14.newObject("Sketcher::SketchObject", "Sketch013")
sketch14.AttachmentSupport = (doc.getObject("XZ_Plane013"), [""])
sketch14.MapMode = "FlatFace"
sketch14.AttachmentOffset = App.Placement(Vector(0, 0, -6), App.Rotation())
sketch14.addGeometry([
    Part.ArcOfCircle(Part.Circle(Vector(34, 3, 0), Vector(0, 0, 1), 1.5), math.radians(-90), math.radians(90)),
    Part.LineSegment(Vector(34, 4.5, 0), Vector(34, 1.5, 0)),
], False)
sketch14.addGeometry(Part.LineSegment(Vector(34, 1.5, 0), Vector(34, 4.5, 0)), True)  # axis
sketch14.addConstraint([
    Sketcher.Constraint("Coincident", 0, 1, 1, 2),
    Sketcher.Constraint("Coincident", 1, 1, 0, 2),
    Sketcher.Constraint("Vertical", 1),
    Sketcher.Constraint("Vertical", 2),
    Sketcher.Constraint("Coincident", 2, 1, 0, 1),
    Sketcher.Constraint("Equal", 1, 2),
    Sketcher.Constraint("Radius", 0, 1.5),
    Sketcher.Constraint("DistanceX", -1, 1, 0, 3, 34.0),
    Sketcher.Constraint("DistanceY", -1, 1, 0, 3, 3.0),
    Sketcher.Constraint("DistanceX", -1, 1, 0, 1, 34.0),
])
sketch14.setExpression("Constraints[6]", "Params.sketch14_radius")
revolution13 = body14.newObject("PartDesign::Revolution", "Revolution012")
revolution13.Profile = sketch14
revolution13.ReferenceAxis = (sketch14, ["Axis0"])
revolution13.setExpression("Angle", "Params.revolution13_angle")
doc.recompute()

boolean9 = body14.newObject("PartDesign::Boolean", "Boolean008")
boolean9.Type = "Fuse"
boolean9.addObjects([body10])
doc.recompute()

boolean10 = body14.newObject("PartDesign::Boolean", "Boolean009")
boolean10.Type = "Fuse"
boolean10.addObjects([body11])
doc.recompute()

boolean11 = body14.newObject("PartDesign::Boolean", "Boolean010")
boolean11.Type = "Fuse"
boolean11.addObjects([body12])
doc.recompute()

boolean12 = body14.newObject("PartDesign::Boolean", "Boolean011")
boolean12.Type = "Fuse"
boolean12.addObjects([body13])
body15 = doc.addObject("PartDesign::Body", "Body014")

# Sketch on XZ plane
sketch15 = body15.newObject("Sketcher::SketchObject", "Sketch014")
sketch15.AttachmentSupport = (doc.getObject("XZ_Plane014"), [""])
sketch15.MapMode = "FlatFace"
sketch15.AttachmentOffset = App.Placement(Vector(0, 0, -20), App.Rotation())
sketch15.addGeometry([
    Part.ArcOfCircle(Part.Circle(Vector(34, 3, 0), Vector(0, 0, 1), 1.5), math.radians(-90), math.radians(90)),
    Part.LineSegment(Vector(34, 4.5, 0), Vector(34, 1.5, 0)),
], False)
sketch15.addGeometry(Part.LineSegment(Vector(34, 1.5, 0), Vector(34, 4.5, 0)), True)  # axis
sketch15.addConstraint([
    Sketcher.Constraint("Coincident", 0, 1, 1, 2),
    Sketcher.Constraint("Coincident", 1, 1, 0, 2),
    Sketcher.Constraint("Vertical", 1),
    Sketcher.Constraint("Vertical", 2),
    Sketcher.Constraint("Coincident", 2, 1, 0, 1),
    Sketcher.Constraint("Equal", 1, 2),
    Sketcher.Constraint("Radius", 0, 1.5),
    Sketcher.Constraint("DistanceX", -1, 1, 0, 3, 34.0),
    Sketcher.Constraint("DistanceY", -1, 1, 0, 3, 3.0),
    Sketcher.Constraint("DistanceX", -1, 1, 0, 1, 34.0),
])
sketch15.setExpression("Constraints[6]", "Params.sketch15_radius")
revolution14 = body15.newObject("PartDesign::Revolution", "Revolution013")
revolution14.Profile = sketch15
revolution14.ReferenceAxis = (sketch15, ["Axis0"])
revolution14.setExpression("Angle", "Params.revolution14_angle")
body16 = doc.addObject("PartDesign::Body", "Body015")

# Sketch on XZ plane
sketch16 = body16.newObject("Sketcher::SketchObject", "Sketch015")
sketch16.AttachmentSupport = (doc.getObject("XZ_Plane015"), [""])
sketch16.MapMode = "FlatFace"
sketch16.AttachmentOffset = App.Placement(Vector(0, 0, -34), App.Rotation())
sketch16.addGeometry([
    Part.ArcOfCircle(Part.Circle(Vector(6, 3, 0), Vector(0, 0, 1), 1.5), math.radians(-90), math.radians(90)),
    Part.LineSegment(Vector(6, 4.5, 0), Vector(6, 1.5, 0)),
], False)
sketch16.addGeometry(Part.LineSegment(Vector(6, 1.5, 0), Vector(6, 4.5, 0)), True)  # axis
sketch16.addConstraint([
    Sketcher.Constraint("Coincident", 0, 1, 1, 2),
    Sketcher.Constraint("Coincident", 1, 1, 0, 2),
    Sketcher.Constraint("Vertical", 1),
    Sketcher.Constraint("Vertical", 2),
    Sketcher.Constraint("Coincident", 2, 1, 0, 1),
    Sketcher.Constraint("Equal", 1, 2),
    Sketcher.Constraint("Radius", 0, 1.5),
    Sketcher.Constraint("DistanceX", -1, 1, 0, 3, 6.0),
    Sketcher.Constraint("DistanceY", -1, 1, 0, 3, 3.0),
    Sketcher.Constraint("DistanceX", -1, 1, 0, 1, 6.0),
])
sketch16.setExpression("Constraints[6]", "Params.sketch16_radius")
revolution15 = body16.newObject("PartDesign::Revolution", "Revolution014")
revolution15.Profile = sketch16
revolution15.ReferenceAxis = (sketch16, ["Axis0"])
revolution15.setExpression("Angle", "Params.revolution15_angle")
body17 = doc.addObject("PartDesign::Body", "Body016")
body17.AllowCompound = True

# Sketch on XZ plane
sketch17 = body17.newObject("Sketcher::SketchObject", "Sketch016")
sketch17.AttachmentSupport = (doc.getObject("XZ_Plane016"), [""])
sketch17.MapMode = "FlatFace"
sketch17.AttachmentOffset = App.Placement(Vector(0, 0, -6), App.Rotation())
sketch17.addGeometry([
    Part.ArcOfCircle(Part.Circle(Vector(6, 3, 0), Vector(0, 0, 1), 1.5), math.radians(-90), math.radians(90)),
    Part.LineSegment(Vector(6, 4.5, 0), Vector(6, 1.5, 0)),
], False)
sketch17.addGeometry(Part.LineSegment(Vector(6, 1.5, 0), Vector(6, 4.5, 0)), True)  # axis
sketch17.addConstraint([
    Sketcher.Constraint("Coincident", 0, 1, 1, 2),
    Sketcher.Constraint("Coincident", 1, 1, 0, 2),
    Sketcher.Constraint("Vertical", 1),
    Sketcher.Constraint("Vertical", 2),
    Sketcher.Constraint("Coincident", 2, 1, 0, 1),
    Sketcher.Constraint("Equal", 1, 2),
    Sketcher.Constraint("Radius", 0, 1.5),
    Sketcher.Constraint("DistanceX", -1, 1, 0, 3, 6.0),
    Sketcher.Constraint("DistanceY", -1, 1, 0, 3, 3.0),
    Sketcher.Constraint("DistanceX", -1, 1, 0, 1, 6.0),
])
sketch17.setExpression("Constraints[6]", "Params.sketch17_radius")
revolution16 = body17.newObject("PartDesign::Revolution", "Revolution015")
revolution16.Profile = sketch17
revolution16.ReferenceAxis = (sketch17, ["Axis0"])
revolution16.setExpression("Angle", "Params.revolution16_angle")
doc.recompute()

boolean13 = body17.newObject("PartDesign::Boolean", "Boolean012")
boolean13.Type = "Fuse"
boolean13.addObjects([body15])
doc.recompute()

boolean14 = body17.newObject("PartDesign::Boolean", "Boolean013")
boolean14.Type = "Fuse"
boolean14.addObjects([body16])
body18 = doc.addObject("PartDesign::Body", "Body017")

# Sketch on XY plane
sketch18 = body18.newObject("Sketcher::SketchObject", "Sketch017")
sketch18.AttachmentSupport = (doc.getObject("XY_Plane017"), [""])
sketch18.MapMode = "FlatFace"
add_polygon(sketch18, [(0, 40), (0, 0), (40, 0), (40, 40)])  # lines 0-3
sketch18.addConstraint([
    Sketcher.Constraint("Vertical", 0),
    Sketcher.Constraint("Horizontal", 1),
    Sketcher.Constraint("Vertical", 2),
    Sketcher.Constraint("Horizontal", 3),
    Sketcher.Constraint("Coincident", 0, 2, -1, 1),
    Sketcher.Constraint("Equal", 3, 0),
    Sketcher.Constraint("DistanceX", 1, 1, 1, 2, 40.0),
])
sketch18.setExpression("Constraints[10]", "Params.sketch18_width")
pad2 = body18.newObject("PartDesign::Pad", "Pad001")
pad2.Profile = sketch18
pad2.setExpression("Length", "Params.pad2_length")
doc.recompute()

boolean15 = body18.newObject("PartDesign::Boolean", "Boolean014")
boolean15.Type = "Fuse"
boolean15.addObjects([body17])

doc.recompute()
